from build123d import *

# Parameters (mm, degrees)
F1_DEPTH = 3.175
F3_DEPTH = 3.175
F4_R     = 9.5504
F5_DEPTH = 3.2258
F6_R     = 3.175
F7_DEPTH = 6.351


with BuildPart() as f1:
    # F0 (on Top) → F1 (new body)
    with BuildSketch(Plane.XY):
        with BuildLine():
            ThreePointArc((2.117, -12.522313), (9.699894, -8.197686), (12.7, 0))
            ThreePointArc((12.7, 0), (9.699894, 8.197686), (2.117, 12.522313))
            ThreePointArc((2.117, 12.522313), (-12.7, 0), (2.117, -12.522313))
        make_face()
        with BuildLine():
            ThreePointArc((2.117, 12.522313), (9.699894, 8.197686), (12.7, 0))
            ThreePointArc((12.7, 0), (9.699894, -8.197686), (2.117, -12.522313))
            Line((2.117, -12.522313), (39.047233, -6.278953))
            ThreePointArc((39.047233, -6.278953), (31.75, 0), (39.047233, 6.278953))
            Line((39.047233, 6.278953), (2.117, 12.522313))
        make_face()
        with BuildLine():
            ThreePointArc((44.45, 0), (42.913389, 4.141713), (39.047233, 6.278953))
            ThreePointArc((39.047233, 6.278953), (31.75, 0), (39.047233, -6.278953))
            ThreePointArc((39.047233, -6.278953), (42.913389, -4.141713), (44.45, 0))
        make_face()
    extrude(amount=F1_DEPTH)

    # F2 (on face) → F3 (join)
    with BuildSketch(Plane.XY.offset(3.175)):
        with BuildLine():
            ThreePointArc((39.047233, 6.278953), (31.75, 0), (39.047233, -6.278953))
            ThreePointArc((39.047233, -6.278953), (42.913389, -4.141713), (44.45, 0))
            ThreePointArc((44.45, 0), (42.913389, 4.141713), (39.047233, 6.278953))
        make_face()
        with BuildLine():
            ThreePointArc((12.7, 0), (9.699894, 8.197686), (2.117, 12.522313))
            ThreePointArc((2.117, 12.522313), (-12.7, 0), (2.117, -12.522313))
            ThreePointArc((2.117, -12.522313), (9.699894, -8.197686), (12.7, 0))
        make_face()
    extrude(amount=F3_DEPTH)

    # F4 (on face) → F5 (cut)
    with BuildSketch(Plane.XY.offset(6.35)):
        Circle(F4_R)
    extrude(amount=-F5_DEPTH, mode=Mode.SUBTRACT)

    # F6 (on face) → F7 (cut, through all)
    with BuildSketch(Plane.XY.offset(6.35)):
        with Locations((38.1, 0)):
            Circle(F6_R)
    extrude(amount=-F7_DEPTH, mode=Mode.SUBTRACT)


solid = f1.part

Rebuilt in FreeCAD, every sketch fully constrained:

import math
import FreeCAD as App
import Part
import Sketcher

V = App.Vector
Q = App.Units.Quantity

doc = App.newDocument("Part")
body = doc.addObject("PartDesign::Body", "Body")

# Sketch on XY plane
sketch1 = body.newObject("Sketcher::SketchObject", "Sketch")
sketch1.AttachmentSupport = (doc.getObject("XY_Plane"), [""])
sketch1.MapMode = "FlatFace"
sketch1.addGeometry(Part.ArcOfCircle(Part.Circle(V(0, 0, 0), V(0, 0, 1), 13), math.radians(80), math.radians(280)), False)
sketch1.addGeometry(Part.LineSegment(V(2, -13, 0), V(39, -6, 0)), False)
sketch1.addGeometry(Part.ArcOfCircle(Part.Circle(V(38, 0, 0), V(0, 0, 1), 6), math.radians(-81), math.radians(0)), False)
sketch1.addGeometry(Part.ArcOfCircle(Part.Circle(V(38, 0, 0), V(0, 0, 1), 6), math.radians(0), math.radians(81)), False)
sketch1.addGeometry(Part.LineSegment(V(39, 6, 0), V(2, 13, 0)), False)
sketch1.addConstraint(Sketcher.Constraint("Tangent", 0, 2, 1, 1))
sketch1.addConstraint(Sketcher.Constraint("Coincident", 1, 2, 2, 1))
sketch1.addConstraint(Sketcher.Constraint("Tangent", 2, 2, 3, 1))
sketch1.addConstraint(Sketcher.Constraint("Coincident", 3, 2, 4, 1))
sketch1.addConstraint(Sketcher.Constraint("Tangent", 4, 2, 0, 1))
sketch1.addConstraint(Sketcher.Constraint("Coincident", 0, 3, -1, 1))
sketch1.addConstraint(Sketcher.Constraint("Equal", 2, 3))
sketch1.addConstraint(Sketcher.Constraint("Symmetric", 1, 2, 3, 2, -1))
sketch1.addConstraint(Sketcher.Constraint("PointOnObject", 2, 2, -1))
sketch1.addConstraint(Sketcher.Constraint("Radius", 0, Q("0.5 in")))
sketch1.addConstraint(Sketcher.Constraint("Radius", 2, Q("0.25 in")))
sketch1.addConstraint(Sketcher.Constraint("DistanceX", -1, 1, 2, 3, Q("1.5 in")))
sketch1.addConstraint(Sketcher.Constraint("DistanceX", -1, 1, 4, 2, 2.117))
pad1 = body.newObject("PartDesign::Pad", "Pad")
pad1.Profile = sketch1
pad1.Length = Q("0.125 in")

# Sketch on XY plane
sketch2 = body.newObject("Sketcher::SketchObject", "Sketch001")
sketch2.AttachmentSupport = (doc.getObject("XY_Plane"), [""])
sketch2.MapMode = "FlatFace"
sketch2.AttachmentOffset = App.Placement(V(0, 0, 0.125 * 25.4), App.Rotation())
sketch2.addGeometry(Part.ArcOfCircle(Part.Circle(V(38, 0, 0), V(0, 0, 1), 6), math.radians(81), math.radians(279)), False)
sketch2.addGeometry(Part.ArcOfCircle(Part.Circle(V(38, 0, 0), V(0, 0, 1), 6), math.radians(-81), math.radians(0)), False)
sketch2.addGeometry(Part.ArcOfCircle(Part.Circle(V(38, 0, 0), V(0, 0, 1), 6), math.radians(0), math.radians(81)), False)
sketch2.addGeometry(Part.ArcOfCircle(Part.Circle(V(0, 0, 0), V(0, 0, 1), 13), math.radians(0), math.radians(80)), False)
sketch2.addGeometry(Part.ArcOfCircle(Part.Circle(V(0, 0, 0), V(0, 0, 1), 13), math.radians(80), math.radians(280)), False)
sketch2.addGeometry(Part.ArcOfCircle(Part.Circle(V(0, 0, 0), V(0, 0, 1), 13), math.radians(-80), math.radians(0)), False)
sketch2.addConstraint(Sketcher.Constraint("Tangent", 0, 2, 1, 1))
sketch2.addConstraint(Sketcher.Constraint("Tangent", 1, 2, 2, 1))
sketch2.addConstraint(Sketcher.Constraint("Tangent", 2, 2, 0, 1))
sketch2.addConstraint(Sketcher.Constraint("Tangent", 3, 2, 4, 1))
sketch2.addConstraint(Sketcher.Constraint("Tangent", 4, 2, 5, 1))
sketch2.addConstraint(Sketcher.Constraint("Tangent", 5, 2, 3, 1))
sketch2.addConstraint(Sketcher.Constraint("Coincident", 3, 3, -1, 1))
sketch2.addConstraint(Sketcher.Constraint("Symmetric", 0, 2, 2, 2, -1))
sketch2.addConstraint(Sketcher.Constraint("PointOnObject", 1, 2, -1))
sketch2.addConstraint(Sketcher.Constraint("PointOnObject", 5, 2, -1))
sketch2.addConstraint(Sketcher.Constraint("Vertical", 3, 2, 4, 2))
sketch2.addConstraint(Sketcher.Constraint("Radius", 3, Q("0.5 in")))
sketch2.addConstraint(Sketcher.Constraint("Radius", 0, Q("0.25 in")))
sketch2.addConstraint(Sketcher.Constraint("DistanceX", -1, 1, 0, 3, Q("1.5 in")))
sketch2.addConstraint(Sketcher.Constraint("DistanceX", -1, 1, 3, 2, 2.117))
sketch2.addConstraint(Sketcher.Constraint("DistanceY", 2, 2, 3, 2, 6.24336))
pad2 = body.newObject("PartDesign::Pad", "Pad001")
pad2.Profile = sketch2
pad2.Length = Q("0.125 in")

# Sketch on XY plane
sketch3 = body.newObject("Sketcher::SketchObject", "Sketch002")
sketch3.AttachmentSupport = (doc.getObject("XY_Plane"), [""])
sketch3.MapMode = "FlatFace"
sketch3.AttachmentOffset = App.Placement(V(0, 0, 0.25 * 25.4), App.Rotation())
sketch3.addGeometry(Part.Circle(V(0, 0, 0), V(0, 0, 1), 10), False)
sketch3.addConstraint(Sketcher.Constraint("Coincident", 0, 3, -1, 1))
sketch3.addConstraint(Sketcher.Constraint("Diameter", 0, Q("0.752 in")))
pocket1 = body.newObject("PartDesign::Pocket", "Pocket")
pocket1.Profile = sketch3
pocket1.Length = Q("0.127 in")

# Sketch on XY plane
sketch4 = body.newObject("Sketcher::SketchObject", "Sketch003")
sketch4.AttachmentSupport = (doc.getObject("XY_Plane"), [""])
sketch4.MapMode = "FlatFace"
sketch4.AttachmentOffset = App.Placement(V(0, 0, 0.25 * 25.4), App.Rotation())
sketch4.addGeometry(Part.Circle(V(38.1, 0, 0), V(0, 0, 1), 3.2), False)
sketch4.addConstraint(Sketcher.Constraint("PointOnObject", 0, 3, -1))
sketch4.addConstraint(Sketcher.Constraint("Diameter", 0, Q("0.25 in")))
sketch4.addConstraint(Sketcher.Constraint("DistanceX", -1, 1, 0, 3, Q("1.5 in")))
pocket2 = body.newObject("PartDesign::Pocket", "Pocket001")
pocket2.Profile = sketch4
pocket2.Type = "ThroughAll"

doc.recompute()
